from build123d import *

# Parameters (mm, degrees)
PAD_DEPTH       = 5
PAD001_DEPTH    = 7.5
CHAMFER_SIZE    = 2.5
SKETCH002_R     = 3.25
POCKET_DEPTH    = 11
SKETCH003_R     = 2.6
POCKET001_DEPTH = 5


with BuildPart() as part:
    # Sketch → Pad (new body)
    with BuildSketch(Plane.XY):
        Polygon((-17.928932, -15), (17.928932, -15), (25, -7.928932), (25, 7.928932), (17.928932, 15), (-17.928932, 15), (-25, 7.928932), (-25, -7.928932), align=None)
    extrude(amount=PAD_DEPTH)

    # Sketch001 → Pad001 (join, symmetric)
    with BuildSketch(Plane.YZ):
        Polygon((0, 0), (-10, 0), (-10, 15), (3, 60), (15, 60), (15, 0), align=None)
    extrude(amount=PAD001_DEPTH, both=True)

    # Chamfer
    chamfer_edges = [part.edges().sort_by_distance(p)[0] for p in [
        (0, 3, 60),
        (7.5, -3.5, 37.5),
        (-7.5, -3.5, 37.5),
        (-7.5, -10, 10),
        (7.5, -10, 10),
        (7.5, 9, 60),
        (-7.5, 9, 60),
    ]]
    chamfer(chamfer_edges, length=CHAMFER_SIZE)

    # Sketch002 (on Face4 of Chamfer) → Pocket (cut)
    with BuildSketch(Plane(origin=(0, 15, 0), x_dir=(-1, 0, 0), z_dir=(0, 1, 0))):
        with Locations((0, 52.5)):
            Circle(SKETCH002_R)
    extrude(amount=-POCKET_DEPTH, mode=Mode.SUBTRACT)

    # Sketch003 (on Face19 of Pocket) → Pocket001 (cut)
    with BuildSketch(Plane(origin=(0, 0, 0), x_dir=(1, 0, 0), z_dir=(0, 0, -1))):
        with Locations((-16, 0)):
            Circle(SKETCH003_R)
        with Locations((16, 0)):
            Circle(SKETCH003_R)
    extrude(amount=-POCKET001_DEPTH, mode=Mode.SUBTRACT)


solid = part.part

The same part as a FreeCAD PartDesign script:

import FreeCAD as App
import Part
import Sketcher

V = App.Vector
Q = App.Units.Quantity


def edges_at(feature, points):
    """Names of the edges that pass closest to the given points."""
    edges = feature.Shape.Edges
    near = lambda p: min(range(len(edges)), key=lambda i: edges[i].distToShape(Part.Vertex(*p))[0])
    return sorted({f"Edge{near(p) + 1}" for p in points})

doc = App.newDocument("Part")
body = doc.addObject("PartDesign::Body", "Body")

sketch1 = body.newObject("Sketcher::SketchObject", "Sketch")
sketch1.AttachmentSupport = (doc.getObject("XY_Plane"), [""])
sketch1.MapMode = "FlatFace"
sketch1.addGeometry([
    Part.LineSegment(V(-18, -15, 0), V(18, -15, 0)),
    Part.LineSegment(V(18, -15, 0), V(25, -8, 0)),
    Part.LineSegment(V(25, -8, 0), V(25, 8, 0)),
    Part.LineSegment(V(25, 8, 0), V(18, 15, 0)),
    Part.LineSegment(V(18, 15, 0), V(-18, 15, 0)),
    Part.LineSegment(V(-18, 15, 0), V(-25, 8, 0)),
    Part.LineSegment(V(-25, 8, 0), V(-25, -8, 0)),
    Part.LineSegment(V(-25, -8, 0), V(-18, -15, 0)),
], False)
sketch1.addConstraint([
    Sketcher.Constraint("Coincident", 0, 2, 1, 1),
    Sketcher.Constraint("Coincident", 1, 2, 2, 1),
    Sketcher.Constraint("Coincident", 2, 2, 3, 1),
    Sketcher.Constraint("Coincident", 3, 2, 4, 1),
    Sketcher.Constraint("Coincident", 4, 2, 5, 1),
    Sketcher.Constraint("Coincident", 5, 2, 6, 1),
    Sketcher.Constraint("Coincident", 6, 2, 7, 1),
    Sketcher.Constraint("Coincident", 7, 2, 0, 1),
    Sketcher.Constraint("Horizontal", 0),
    Sketcher.Constraint("Vertical", 2),
    Sketcher.Constraint("Horizontal", 4),
    Sketcher.Constraint("Vertical", 6),
    Sketcher.Constraint("Symmetric", 0, 2, 4, 2, -1, 1),
    Sketcher.Constraint("Symmetric", 1, 2, 5, 2, -1, 1),
    Sketcher.Constraint("Perpendicular", 1, 3),
    Sketcher.Constraint("Perpendicular", 5, 7),
    Sketcher.Constraint("Horizontal", 2, 2, 5, 2),
    Sketcher.Constraint("Horizontal", 1, 2, 6, 2),
    Sketcher.Constraint("Vertical", 0, 2, 3, 2),
    Sketcher.Constraint("Distance", 1, Q("10 mm")),
    Sketcher.Constraint("DistanceY", 0, 2, -1, 1, Q("15 mm")),
    Sketcher.Constraint("DistanceX", -1, 1, 1, 2, Q("25 mm")),
])
pad1 = body.newObject("PartDesign::Pad", "Pad")
pad1.Profile = sketch1
pad1.Length = 5

sketch2 = body.newObject("Sketcher::SketchObject", "Sketch001")
sketch2.AttachmentSupport = (doc.getObject("YZ_Plane"), [""])
sketch2.MapMode = "FlatFace"
sketch2.addGeometry([
    Part.LineSegment(V(-10, 0, 0), V(15, 0, 0)),
    Part.LineSegment(V(15, 0, 0), V(15, 60, 0)),
    Part.LineSegment(V(15, 60, 0), V(3, 60, 0)),
    Part.LineSegment(V(3, 60, 0), V(-10, 15, 0)),
    Part.LineSegment(V(-10, 15, 0), V(-10, 0, 0)),
], False)
sketch2.addConstraint([
    Sketcher.Constraint("Coincident", 0, 2, 1, 1),
    Sketcher.Constraint("Coincident", 1, 2, 2, 1),
    Sketcher.Constraint("Coincident", 2, 2, 3, 1),
    Sketcher.Constraint("Coincident", 3, 2, 4, 1),
    Sketcher.Constraint("Coincident", 4, 2, 0, 1),
    Sketcher.Constraint("Horizontal", 0),
    Sketcher.Constraint("Vertical", 1),
    Sketcher.Constraint("Horizontal", 2),
    Sketcher.Constraint("Vertical", 4),
    Sketcher.Constraint("PointOnObject", 0, 2, -1),
    Sketcher.Constraint("DistanceX", 0, 1, 0, 2, Q("25 mm")),
    Sketcher.Constraint("DistanceX", 2, 2, 2, 1, Q("12 mm")),
    Sketcher.Constraint("DistanceY", 1, 1, 1, 2, Q("60 mm")),
    Sketcher.Constraint("DistanceY", 4, 2, 4, 1, Q("15 mm")),
    Sketcher.Constraint("DistanceX", -1, 1, 0, 2, Q("15 mm")),
])
pad2 = body.newObject("PartDesign::Pad", "Pad001")
pad2.Profile = sketch2
pad2.Length = 15
pad2.Midplane = True
doc.recompute()

chamfer = body.newObject("PartDesign::Chamfer", "Chamfer")
chamfer.Base = (pad2, edges_at(pad2, [
    (0, 3, 60),
    (7.5, -3.5, 37.5),
    (-7.5, -3.5, 37.5),
    (-7.5, -10, 10),
    (7.5, -10, 10),
    (7.5, 9, 60),
    (-7.5, 9, 60),
]))
chamfer.Size = 2.5

sketch3 = body.newObject("Sketcher::SketchObject", "Sketch002")
sketch3.AttachmentSupport = (doc.getObject("XZ_Plane"), [""])
sketch3.MapMode = "FlatFace"
sketch3.AttachmentOffset = App.Placement(V(0, 0, -15), App.Rotation())
sketch3.addGeometry(Part.Circle(V(0, 52.5, 0), V(0, 0, 1), 3.2), False)
sketch3.addConstraint([
    Sketcher.Constraint("PointOnObject", 0, 3, -2),
    Sketcher.Constraint("Diameter", 0, Q("6.5 mm")),
    Sketcher.Constraint("DistanceY", -1, 1, 0, 3, Q("52.5 mm")),
])
pocket1 = body.newObject("PartDesign::Pocket", "Pocket")
pocket1.Profile = sketch3
pocket1.Length = 11
pocket1.Reversed = True

sketch4 = body.newObject("Sketcher::SketchObject", "Sketch003")
sketch4.AttachmentSupport = (doc.getObject("XY_Plane"), [""])
sketch4.MapMode = "FlatFace"
sketch4.addGeometry([
    Part.Circle(V(-16, 0, 0), V(0, 0, 1), 2.6),
    Part.Circle(V(16, 0, 0), V(0, 0, 1), 2.6),
], False)
sketch4.addConstraint([
    Sketcher.Constraint("Equal", 0, 1),
    Sketcher.Constraint("Symmetric", 0, 3, 1, 3, -1, 1),
    Sketcher.Constraint("PointOnObject", 0, 3, -1),
    Sketcher.Constraint("Diameter", 0, Q("5.2 mm")),
    Sketcher.Constraint("DistanceX", 0, 3, -1, 1, Q("16 mm")),
])
pocket2 = body.newObject("PartDesign::Pocket", "Pocket001")
pocket2.Profile = sketch4
pocket2.Length = 5
pocket2.Reversed = True

doc.recompute()
